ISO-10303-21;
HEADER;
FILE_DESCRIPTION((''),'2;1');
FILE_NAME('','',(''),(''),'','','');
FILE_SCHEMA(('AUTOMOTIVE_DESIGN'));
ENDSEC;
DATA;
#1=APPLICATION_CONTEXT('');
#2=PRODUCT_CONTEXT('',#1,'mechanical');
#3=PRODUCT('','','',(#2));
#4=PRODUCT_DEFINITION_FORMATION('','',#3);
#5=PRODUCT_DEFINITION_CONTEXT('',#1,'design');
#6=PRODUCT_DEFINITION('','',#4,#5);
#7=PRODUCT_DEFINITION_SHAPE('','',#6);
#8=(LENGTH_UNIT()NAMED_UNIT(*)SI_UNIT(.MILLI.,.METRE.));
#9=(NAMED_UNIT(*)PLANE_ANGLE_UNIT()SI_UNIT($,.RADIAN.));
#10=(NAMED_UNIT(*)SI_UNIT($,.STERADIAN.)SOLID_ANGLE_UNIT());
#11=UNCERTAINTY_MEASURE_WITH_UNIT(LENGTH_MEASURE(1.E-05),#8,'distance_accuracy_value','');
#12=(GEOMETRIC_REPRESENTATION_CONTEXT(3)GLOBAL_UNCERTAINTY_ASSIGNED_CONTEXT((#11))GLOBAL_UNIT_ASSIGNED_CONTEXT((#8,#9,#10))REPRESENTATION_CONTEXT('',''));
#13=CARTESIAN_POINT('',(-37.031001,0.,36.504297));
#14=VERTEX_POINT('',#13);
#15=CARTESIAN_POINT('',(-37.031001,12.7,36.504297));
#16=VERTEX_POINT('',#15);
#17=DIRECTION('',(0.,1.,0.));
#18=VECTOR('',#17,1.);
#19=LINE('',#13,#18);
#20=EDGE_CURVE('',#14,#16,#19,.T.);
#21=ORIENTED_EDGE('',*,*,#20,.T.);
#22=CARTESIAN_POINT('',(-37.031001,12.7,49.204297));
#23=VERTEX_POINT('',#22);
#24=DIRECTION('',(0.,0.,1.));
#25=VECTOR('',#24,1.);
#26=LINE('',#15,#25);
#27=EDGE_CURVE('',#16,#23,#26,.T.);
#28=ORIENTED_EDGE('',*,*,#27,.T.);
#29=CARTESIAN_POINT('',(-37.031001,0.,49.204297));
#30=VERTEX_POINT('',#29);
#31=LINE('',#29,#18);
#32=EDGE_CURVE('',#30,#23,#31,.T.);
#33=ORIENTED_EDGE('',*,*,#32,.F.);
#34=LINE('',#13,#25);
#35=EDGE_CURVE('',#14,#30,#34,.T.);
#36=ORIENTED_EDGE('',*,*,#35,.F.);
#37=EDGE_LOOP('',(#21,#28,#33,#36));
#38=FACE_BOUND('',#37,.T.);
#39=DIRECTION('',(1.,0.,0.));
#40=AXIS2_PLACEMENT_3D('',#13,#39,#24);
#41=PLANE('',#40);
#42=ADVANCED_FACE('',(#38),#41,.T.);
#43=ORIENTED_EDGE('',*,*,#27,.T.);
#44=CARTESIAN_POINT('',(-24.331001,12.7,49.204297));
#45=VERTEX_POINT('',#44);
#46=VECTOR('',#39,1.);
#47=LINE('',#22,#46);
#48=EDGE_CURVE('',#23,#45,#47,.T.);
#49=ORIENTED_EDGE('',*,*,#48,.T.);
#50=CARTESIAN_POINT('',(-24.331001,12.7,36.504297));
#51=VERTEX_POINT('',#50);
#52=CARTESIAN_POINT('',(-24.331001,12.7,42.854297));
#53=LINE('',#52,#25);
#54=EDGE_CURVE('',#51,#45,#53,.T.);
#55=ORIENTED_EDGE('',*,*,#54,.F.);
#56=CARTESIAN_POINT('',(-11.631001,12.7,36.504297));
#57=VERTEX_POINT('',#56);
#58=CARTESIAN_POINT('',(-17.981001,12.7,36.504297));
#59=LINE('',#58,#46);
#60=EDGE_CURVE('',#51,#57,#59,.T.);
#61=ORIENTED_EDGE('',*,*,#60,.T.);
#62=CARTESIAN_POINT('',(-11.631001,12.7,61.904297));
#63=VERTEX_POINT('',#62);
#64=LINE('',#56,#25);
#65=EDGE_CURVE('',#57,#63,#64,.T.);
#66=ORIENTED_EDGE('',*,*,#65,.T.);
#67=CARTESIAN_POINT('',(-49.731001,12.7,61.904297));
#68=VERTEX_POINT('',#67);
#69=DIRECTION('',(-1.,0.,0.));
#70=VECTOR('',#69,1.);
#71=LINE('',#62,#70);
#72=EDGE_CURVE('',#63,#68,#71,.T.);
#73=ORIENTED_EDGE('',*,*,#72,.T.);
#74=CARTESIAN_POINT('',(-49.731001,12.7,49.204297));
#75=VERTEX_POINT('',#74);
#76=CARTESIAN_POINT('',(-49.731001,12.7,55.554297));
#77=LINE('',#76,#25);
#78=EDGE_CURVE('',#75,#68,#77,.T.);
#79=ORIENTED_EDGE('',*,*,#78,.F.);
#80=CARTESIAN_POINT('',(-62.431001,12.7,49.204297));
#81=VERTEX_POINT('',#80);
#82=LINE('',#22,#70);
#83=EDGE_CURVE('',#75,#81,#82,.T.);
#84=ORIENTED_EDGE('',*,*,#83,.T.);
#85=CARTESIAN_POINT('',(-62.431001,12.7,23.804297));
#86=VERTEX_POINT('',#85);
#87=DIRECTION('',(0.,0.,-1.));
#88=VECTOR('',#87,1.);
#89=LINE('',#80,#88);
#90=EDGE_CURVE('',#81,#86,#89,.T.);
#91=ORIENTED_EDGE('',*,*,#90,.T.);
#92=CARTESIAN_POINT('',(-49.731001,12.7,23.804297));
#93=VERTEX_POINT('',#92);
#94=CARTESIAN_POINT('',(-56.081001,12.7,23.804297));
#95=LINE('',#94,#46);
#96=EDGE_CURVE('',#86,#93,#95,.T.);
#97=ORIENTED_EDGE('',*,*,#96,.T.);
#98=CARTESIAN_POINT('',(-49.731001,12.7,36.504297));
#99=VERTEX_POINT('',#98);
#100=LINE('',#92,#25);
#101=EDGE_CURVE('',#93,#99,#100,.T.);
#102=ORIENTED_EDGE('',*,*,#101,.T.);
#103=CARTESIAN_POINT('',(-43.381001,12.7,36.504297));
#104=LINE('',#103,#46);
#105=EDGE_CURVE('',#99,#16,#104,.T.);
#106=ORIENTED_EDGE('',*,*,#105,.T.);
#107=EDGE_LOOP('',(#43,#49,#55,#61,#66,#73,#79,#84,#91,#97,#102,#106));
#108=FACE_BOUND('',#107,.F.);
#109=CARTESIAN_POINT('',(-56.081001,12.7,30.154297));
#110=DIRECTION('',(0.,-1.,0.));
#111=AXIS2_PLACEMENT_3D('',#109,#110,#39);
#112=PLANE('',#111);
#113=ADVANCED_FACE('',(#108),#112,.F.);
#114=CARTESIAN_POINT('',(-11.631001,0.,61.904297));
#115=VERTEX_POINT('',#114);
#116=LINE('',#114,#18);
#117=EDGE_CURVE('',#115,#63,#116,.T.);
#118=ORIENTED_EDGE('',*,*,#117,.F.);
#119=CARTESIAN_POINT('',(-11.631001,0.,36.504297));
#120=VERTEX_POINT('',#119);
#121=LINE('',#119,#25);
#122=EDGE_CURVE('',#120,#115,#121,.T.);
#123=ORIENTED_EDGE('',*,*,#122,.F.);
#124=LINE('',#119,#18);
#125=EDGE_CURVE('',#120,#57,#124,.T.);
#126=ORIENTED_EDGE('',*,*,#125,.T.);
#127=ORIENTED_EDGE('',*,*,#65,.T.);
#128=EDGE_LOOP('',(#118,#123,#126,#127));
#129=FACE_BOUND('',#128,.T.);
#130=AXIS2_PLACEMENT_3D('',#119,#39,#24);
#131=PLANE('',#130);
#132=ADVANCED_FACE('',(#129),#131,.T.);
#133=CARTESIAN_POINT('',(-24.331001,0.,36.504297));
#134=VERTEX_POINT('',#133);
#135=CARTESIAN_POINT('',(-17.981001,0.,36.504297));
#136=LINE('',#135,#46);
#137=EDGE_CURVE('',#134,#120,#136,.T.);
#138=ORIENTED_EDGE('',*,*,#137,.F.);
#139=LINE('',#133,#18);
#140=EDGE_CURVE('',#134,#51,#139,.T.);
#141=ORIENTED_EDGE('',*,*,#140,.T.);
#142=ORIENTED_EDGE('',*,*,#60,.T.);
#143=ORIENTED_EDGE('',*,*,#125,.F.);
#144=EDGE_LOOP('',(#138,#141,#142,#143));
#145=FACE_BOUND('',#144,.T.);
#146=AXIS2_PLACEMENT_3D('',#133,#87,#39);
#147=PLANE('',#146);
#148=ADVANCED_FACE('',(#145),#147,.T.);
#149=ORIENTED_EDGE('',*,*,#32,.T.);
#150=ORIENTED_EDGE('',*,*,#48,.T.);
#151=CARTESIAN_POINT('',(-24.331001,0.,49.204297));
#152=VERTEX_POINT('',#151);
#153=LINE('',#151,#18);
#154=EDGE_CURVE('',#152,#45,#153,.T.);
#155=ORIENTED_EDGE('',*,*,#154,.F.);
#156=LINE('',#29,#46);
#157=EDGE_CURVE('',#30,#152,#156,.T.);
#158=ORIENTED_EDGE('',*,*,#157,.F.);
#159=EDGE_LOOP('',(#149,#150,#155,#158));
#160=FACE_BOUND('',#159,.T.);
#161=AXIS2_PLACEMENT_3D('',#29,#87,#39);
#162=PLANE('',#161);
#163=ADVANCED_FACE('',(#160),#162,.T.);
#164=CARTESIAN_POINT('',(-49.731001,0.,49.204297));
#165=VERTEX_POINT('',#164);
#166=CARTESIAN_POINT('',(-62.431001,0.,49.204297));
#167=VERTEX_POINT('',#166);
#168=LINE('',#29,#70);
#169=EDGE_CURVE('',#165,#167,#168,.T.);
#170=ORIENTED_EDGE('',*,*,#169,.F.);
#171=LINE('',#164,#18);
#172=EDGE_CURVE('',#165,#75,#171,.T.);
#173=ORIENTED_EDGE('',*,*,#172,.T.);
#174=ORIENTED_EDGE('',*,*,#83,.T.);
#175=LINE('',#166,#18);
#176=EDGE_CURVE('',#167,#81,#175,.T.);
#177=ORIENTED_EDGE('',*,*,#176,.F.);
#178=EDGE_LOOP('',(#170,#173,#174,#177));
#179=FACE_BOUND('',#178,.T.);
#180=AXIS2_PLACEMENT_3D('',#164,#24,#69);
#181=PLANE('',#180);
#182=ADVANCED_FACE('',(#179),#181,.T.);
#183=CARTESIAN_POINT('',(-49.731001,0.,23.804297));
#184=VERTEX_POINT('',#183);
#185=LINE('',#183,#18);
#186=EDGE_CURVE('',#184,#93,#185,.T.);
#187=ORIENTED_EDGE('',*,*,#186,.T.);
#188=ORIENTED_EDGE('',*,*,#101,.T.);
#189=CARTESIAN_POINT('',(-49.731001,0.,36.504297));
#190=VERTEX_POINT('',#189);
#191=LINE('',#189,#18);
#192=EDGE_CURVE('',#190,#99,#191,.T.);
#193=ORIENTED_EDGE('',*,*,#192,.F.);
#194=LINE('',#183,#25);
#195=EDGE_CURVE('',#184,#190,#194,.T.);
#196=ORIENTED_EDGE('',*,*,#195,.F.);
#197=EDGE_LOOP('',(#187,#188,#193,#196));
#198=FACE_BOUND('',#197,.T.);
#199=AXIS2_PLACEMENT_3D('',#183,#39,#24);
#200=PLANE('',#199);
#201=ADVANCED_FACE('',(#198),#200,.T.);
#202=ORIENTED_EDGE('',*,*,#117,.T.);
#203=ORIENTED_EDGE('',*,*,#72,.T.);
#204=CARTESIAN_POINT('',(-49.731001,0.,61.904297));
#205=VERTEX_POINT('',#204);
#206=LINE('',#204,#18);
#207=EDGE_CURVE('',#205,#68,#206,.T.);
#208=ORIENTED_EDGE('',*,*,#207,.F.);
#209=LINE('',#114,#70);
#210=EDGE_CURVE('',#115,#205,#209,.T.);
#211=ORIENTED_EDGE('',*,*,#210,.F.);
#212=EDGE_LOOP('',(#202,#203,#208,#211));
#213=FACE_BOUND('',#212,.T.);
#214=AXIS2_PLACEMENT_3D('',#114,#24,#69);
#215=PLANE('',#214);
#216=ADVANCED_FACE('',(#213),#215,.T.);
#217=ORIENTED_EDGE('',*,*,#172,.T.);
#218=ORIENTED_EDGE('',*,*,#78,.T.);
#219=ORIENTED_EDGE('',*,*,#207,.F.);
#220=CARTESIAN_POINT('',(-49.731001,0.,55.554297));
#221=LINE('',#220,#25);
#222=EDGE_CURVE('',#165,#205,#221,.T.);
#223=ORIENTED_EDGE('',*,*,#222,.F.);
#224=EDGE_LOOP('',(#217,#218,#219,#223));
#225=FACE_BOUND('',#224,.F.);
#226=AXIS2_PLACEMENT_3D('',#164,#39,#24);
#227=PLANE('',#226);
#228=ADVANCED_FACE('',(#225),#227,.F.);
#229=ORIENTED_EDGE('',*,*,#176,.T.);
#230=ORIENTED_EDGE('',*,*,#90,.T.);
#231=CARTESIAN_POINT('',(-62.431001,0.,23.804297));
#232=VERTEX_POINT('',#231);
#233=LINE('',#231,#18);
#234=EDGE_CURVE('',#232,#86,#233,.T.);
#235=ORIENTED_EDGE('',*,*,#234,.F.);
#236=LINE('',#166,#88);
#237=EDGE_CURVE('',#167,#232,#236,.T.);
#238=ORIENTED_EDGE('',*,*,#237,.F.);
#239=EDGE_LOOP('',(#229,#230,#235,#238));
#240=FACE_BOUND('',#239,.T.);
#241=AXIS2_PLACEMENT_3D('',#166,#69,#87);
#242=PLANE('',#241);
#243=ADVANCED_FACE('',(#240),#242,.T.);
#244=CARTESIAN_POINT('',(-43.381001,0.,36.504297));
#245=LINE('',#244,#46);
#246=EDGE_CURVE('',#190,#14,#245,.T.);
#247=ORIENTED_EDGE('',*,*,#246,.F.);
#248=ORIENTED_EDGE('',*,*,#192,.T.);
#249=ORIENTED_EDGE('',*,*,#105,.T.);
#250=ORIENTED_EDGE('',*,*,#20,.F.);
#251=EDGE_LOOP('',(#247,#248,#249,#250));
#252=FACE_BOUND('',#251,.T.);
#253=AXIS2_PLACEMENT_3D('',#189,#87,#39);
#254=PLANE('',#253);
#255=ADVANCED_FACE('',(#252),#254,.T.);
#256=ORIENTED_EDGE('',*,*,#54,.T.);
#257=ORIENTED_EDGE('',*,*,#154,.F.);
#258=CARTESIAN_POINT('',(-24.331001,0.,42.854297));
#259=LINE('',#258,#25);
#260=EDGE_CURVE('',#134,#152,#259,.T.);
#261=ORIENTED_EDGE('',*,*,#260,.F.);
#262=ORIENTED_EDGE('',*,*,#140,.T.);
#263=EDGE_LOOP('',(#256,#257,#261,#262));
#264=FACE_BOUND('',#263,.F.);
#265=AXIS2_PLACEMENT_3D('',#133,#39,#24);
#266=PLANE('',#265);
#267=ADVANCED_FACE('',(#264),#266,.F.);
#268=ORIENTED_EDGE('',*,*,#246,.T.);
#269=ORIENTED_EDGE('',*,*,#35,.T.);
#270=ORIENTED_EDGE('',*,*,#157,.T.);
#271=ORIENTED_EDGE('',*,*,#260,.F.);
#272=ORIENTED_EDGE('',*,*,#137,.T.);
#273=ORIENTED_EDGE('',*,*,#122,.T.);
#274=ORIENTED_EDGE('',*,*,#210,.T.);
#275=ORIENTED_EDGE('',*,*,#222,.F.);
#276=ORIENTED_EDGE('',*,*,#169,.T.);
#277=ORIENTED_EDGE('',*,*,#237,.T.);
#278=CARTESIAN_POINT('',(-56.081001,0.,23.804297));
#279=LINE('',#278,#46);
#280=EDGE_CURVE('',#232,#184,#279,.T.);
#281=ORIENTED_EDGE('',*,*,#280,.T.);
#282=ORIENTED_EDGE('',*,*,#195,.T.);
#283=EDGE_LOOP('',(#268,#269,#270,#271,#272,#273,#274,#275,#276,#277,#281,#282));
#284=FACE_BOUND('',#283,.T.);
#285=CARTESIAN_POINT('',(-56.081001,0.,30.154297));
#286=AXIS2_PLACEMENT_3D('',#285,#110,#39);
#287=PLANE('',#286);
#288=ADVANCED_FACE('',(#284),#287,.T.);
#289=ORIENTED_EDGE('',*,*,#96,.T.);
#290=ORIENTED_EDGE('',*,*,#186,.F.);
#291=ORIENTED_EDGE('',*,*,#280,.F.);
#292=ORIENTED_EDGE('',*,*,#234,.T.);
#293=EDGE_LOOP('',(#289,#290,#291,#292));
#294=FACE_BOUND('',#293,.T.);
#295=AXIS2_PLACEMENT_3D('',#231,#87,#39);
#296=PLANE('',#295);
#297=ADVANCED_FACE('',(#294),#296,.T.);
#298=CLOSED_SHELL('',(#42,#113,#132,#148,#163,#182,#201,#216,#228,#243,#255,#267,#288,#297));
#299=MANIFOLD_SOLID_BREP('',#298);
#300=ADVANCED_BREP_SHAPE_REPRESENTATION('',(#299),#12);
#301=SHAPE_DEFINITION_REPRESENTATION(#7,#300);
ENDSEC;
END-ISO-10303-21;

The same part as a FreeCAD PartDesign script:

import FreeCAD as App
import Part
import Sketcher

V = App.Vector
Q = App.Units.Quantity


def add_polygon(sketch, points):
    """Adds a closed chain of lines whose ends are joined by coincident constraints."""
    first, n = sketch.GeometryCount, len(points)
    for a, b in zip(points, points[1:] + points[:1]):
        sketch.addGeometry(Part.LineSegment(App.Vector(*a, 0), App.Vector(*b, 0)), False)
    for i in range(n):
        sketch.addConstraint(Sketcher.Constraint("Coincident", first + i, 2, first + (i + 1) % n, 1))

doc = App.newDocument("Part")
params = doc.addObject("Spreadsheet::Sheet", "Params")
for row, (alias, value) in enumerate([
    ("sketch1_height", "1 in"),
    ("pad1_length", "0.5 in"),
], start=1):
    params.set(f"A{row}", alias)
    params.set(f"B{row}", "=" + value)
    params.setAlias(f"B{row}", alias)

body = doc.addObject("PartDesign::Body", "Body")

# Sketch on XZ plane
sketch1 = body.newObject("Sketcher::SketchObject", "Sketch")
sketch1.AttachmentSupport = (doc.getObject("XZ_Plane"), [""])
sketch1.MapMode = "FlatFace"
add_polygon(sketch1, [(-62.431001, 23.804297), (-49.731001, 23.804297), (-49.731001, 36.504297), (-37.031001, 36.504297), (-37.031001, 49.204297), (-24.331001, 49.204297), (-24.331001, 36.504297), (-11.631001, 36.504297), (-11.631001, 61.904297), (-49.731001, 61.904297), (-49.731001, 49.204297), (-62.431001, 49.204297)])  # lines 0-11
sketch1.addConstraint(Sketcher.Constraint("Horizontal", 0))
sketch1.addConstraint(Sketcher.Constraint("Vertical", 1))
sketch1.addConstraint(Sketcher.Constraint("Horizontal", 2))
sketch1.addConstraint(Sketcher.Constraint("Vertical", 3))
sketch1.addConstraint(Sketcher.Constraint("Horizontal", 4))
sketch1.addConstraint(Sketcher.Constraint("Vertical", 5))
sketch1.addConstraint(Sketcher.Constraint("Horizontal", 6))
sketch1.addConstraint(Sketcher.Constraint("Vertical", 7))
sketch1.addConstraint(Sketcher.Constraint("Horizontal", 8))
sketch1.addConstraint(Sketcher.Constraint("Vertical", 9))
sketch1.addConstraint(Sketcher.Constraint("Horizontal", 10))
sketch1.addConstraint(Sketcher.Constraint("Vertical", 11))
sketch1.addConstraint(Sketcher.Constraint("Horizontal", 2, 2, 5, 2))
sketch1.addConstraint(Sketcher.Constraint("Horizontal", 4, 2, 9, 2))
sketch1.addConstraint(Sketcher.Constraint("Vertical", 1, 2, 8, 2))
sketch1.addConstraint(Sketcher.Constraint("Equal", 0, 2))
sketch1.addConstraint(Sketcher.Constraint("Equal", 2, 4))
sketch1.addConstraint(Sketcher.Constraint("Equal", 4, 6))
sketch1.addConstraint(Sketcher.Constraint("Equal", 10, 1))
sketch1.addConstraint(Sketcher.Constraint("Equal", 1, 3))
sketch1.addConstraint(Sketcher.Constraint("Equal", 5, 9))
sketch1.addConstraint(Sketcher.Constraint("DistanceY", 7, 1, 7, 2, Q("1 in")))
sketch1.addConstraint(Sketcher.Constraint("DistanceX", 0, 2, -1, 1, Q("49.731001 mm")))
sketch1.addConstraint(Sketcher.Constraint("DistanceY", -1, 1, 0, 2, Q("23.804297 mm")))
sketch1.setExpression("Constraints[33]", "Params.sketch1_height")
pad1 = body.newObject("PartDesign::Pad", "Pad")
pad1.Profile = sketch1
pad1.setExpression("Length", "Params.pad1_length")
pad1.Reversed = True

doc.recompute()
